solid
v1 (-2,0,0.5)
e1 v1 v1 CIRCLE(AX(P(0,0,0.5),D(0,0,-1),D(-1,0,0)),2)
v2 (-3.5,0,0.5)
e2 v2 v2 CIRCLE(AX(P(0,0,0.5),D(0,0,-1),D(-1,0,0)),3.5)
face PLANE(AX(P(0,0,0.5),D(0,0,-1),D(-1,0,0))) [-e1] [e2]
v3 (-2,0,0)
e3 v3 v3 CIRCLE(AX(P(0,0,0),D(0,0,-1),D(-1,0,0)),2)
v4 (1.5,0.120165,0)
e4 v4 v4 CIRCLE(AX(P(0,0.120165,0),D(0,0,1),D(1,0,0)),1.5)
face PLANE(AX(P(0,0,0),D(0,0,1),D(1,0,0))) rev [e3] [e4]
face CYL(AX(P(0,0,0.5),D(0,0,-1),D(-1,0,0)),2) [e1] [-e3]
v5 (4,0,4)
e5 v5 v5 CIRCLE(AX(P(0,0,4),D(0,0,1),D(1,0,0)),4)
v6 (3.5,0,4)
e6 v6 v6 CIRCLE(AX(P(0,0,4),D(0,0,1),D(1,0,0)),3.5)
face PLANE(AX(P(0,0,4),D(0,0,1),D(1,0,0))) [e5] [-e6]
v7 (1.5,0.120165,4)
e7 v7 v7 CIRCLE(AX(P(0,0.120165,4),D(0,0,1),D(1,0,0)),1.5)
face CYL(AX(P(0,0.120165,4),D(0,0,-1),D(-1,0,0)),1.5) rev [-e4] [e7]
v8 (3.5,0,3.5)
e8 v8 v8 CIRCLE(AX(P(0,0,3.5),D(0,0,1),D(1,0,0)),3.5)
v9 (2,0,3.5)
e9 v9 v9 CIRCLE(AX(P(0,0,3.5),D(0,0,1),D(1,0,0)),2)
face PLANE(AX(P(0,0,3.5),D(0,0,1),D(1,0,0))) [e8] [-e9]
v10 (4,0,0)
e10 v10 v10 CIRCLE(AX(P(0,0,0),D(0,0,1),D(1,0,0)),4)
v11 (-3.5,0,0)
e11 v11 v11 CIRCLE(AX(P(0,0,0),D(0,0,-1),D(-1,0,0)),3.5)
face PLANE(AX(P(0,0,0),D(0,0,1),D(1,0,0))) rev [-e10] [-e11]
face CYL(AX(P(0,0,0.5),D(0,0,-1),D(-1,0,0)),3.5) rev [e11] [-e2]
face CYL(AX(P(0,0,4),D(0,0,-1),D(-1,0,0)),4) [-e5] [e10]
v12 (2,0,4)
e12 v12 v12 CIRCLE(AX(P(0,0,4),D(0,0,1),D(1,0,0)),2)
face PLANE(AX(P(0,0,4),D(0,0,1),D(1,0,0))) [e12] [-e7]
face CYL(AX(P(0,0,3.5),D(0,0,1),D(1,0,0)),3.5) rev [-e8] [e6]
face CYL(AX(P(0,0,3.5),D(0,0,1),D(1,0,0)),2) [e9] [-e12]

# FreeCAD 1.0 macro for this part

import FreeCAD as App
import Part
import Sketcher
from FreeCAD import Vector

doc = App.newDocument("Part")
body = doc.addObject("PartDesign::Body", "Body")

# Sketch on XY plane
sketch1 = body.newObject("Sketcher::SketchObject", "Sketch")
sketch1.AttachmentSupport = (doc.getObject("XY_Plane"), [""])
sketch1.MapMode = "FlatFace"
sketch1.addGeometry([
    Part.Circle(Vector(0, 0, 0), Vector(0, 0, 1), 4),
    Part.Circle(Vector(0, 0.1, 0), Vector(0, 0, 1), 1.5),
], False)
sketch1.addConstraint([
    Sketcher.Constraint("Coincident", 0, 3, -1, 1),
    Sketcher.Constraint("PointOnObject", 1, 3, -2),
    Sketcher.Constraint("Diameter", 0, 8.0),
    Sketcher.Constraint("Diameter", 1, 3.0),
    Sketcher.Constraint("DistanceY", -1, 1, 1, 3, 0.120165),
])
pad1 = body.newObject("PartDesign::Pad", "Pad")
pad1.Profile = sketch1
pad1.Length = 4

# Sketch on XY plane
sketch2 = body.newObject("Sketcher::SketchObject", "Sketch001")
sketch2.AttachmentSupport = (doc.getObject("XY_Plane"), [""])
sketch2.MapMode = "FlatFace"
sketch2.AttachmentOffset = App.Placement(Vector(0, 0, 4), App.Rotation())
sketch2.addGeometry([
    Part.Circle(Vector(0, 0, 0), Vector(0, 0, 1), 3.5),
    Part.Circle(Vector(0, 0, 0), Vector(0, 0, 1), 2),
], False)
sketch2.addConstraint([
    Sketcher.Constraint("Coincident", 0, 3, -1, 1),
    Sketcher.Constraint("Coincident", 1, 3, -1, 1),
    Sketcher.Constraint("Diameter", 0, 7.0),
    Sketcher.Constraint("Diameter", 1, 4.0),
])
pocket1 = body.newObject("PartDesign::Pocket", "Pocket")
pocket1.Profile = sketch2
pocket1.Length = 0.5

# Sketch on XY plane
sketch3 = body.newObject("Sketcher::SketchObject", "Sketch002")
sketch3.AttachmentSupport = (doc.getObject("XY_Plane"), [""])
sketch3.MapMode = "FlatFace"
sketch3.AttachmentOffset = App.Placement(Vector(0, 0, 0.5), App.Rotation())
sketch3.addGeometry([
    Part.Circle(Vector(0, 0, 0), Vector(0, 0, 1), 3.5),
    Part.Circle(Vector(0, 0, 0), Vector(0, 0, 1), 2),
], False)
sketch3.addConstraint([
    Sketcher.Constraint("Coincident", 0, 3, -1, 1),
    Sketcher.Constraint("Coincident", 1, 3, -1, 1),
    Sketcher.Constraint("Diameter", 0, 7.0),
    Sketcher.Constraint("Diameter", 1, 4.0),
])
pocket2 = body.newObject("PartDesign::Pocket", "Pocket001")
pocket2.Profile = sketch3
pocket2.Length = 0.5

doc.recompute()
